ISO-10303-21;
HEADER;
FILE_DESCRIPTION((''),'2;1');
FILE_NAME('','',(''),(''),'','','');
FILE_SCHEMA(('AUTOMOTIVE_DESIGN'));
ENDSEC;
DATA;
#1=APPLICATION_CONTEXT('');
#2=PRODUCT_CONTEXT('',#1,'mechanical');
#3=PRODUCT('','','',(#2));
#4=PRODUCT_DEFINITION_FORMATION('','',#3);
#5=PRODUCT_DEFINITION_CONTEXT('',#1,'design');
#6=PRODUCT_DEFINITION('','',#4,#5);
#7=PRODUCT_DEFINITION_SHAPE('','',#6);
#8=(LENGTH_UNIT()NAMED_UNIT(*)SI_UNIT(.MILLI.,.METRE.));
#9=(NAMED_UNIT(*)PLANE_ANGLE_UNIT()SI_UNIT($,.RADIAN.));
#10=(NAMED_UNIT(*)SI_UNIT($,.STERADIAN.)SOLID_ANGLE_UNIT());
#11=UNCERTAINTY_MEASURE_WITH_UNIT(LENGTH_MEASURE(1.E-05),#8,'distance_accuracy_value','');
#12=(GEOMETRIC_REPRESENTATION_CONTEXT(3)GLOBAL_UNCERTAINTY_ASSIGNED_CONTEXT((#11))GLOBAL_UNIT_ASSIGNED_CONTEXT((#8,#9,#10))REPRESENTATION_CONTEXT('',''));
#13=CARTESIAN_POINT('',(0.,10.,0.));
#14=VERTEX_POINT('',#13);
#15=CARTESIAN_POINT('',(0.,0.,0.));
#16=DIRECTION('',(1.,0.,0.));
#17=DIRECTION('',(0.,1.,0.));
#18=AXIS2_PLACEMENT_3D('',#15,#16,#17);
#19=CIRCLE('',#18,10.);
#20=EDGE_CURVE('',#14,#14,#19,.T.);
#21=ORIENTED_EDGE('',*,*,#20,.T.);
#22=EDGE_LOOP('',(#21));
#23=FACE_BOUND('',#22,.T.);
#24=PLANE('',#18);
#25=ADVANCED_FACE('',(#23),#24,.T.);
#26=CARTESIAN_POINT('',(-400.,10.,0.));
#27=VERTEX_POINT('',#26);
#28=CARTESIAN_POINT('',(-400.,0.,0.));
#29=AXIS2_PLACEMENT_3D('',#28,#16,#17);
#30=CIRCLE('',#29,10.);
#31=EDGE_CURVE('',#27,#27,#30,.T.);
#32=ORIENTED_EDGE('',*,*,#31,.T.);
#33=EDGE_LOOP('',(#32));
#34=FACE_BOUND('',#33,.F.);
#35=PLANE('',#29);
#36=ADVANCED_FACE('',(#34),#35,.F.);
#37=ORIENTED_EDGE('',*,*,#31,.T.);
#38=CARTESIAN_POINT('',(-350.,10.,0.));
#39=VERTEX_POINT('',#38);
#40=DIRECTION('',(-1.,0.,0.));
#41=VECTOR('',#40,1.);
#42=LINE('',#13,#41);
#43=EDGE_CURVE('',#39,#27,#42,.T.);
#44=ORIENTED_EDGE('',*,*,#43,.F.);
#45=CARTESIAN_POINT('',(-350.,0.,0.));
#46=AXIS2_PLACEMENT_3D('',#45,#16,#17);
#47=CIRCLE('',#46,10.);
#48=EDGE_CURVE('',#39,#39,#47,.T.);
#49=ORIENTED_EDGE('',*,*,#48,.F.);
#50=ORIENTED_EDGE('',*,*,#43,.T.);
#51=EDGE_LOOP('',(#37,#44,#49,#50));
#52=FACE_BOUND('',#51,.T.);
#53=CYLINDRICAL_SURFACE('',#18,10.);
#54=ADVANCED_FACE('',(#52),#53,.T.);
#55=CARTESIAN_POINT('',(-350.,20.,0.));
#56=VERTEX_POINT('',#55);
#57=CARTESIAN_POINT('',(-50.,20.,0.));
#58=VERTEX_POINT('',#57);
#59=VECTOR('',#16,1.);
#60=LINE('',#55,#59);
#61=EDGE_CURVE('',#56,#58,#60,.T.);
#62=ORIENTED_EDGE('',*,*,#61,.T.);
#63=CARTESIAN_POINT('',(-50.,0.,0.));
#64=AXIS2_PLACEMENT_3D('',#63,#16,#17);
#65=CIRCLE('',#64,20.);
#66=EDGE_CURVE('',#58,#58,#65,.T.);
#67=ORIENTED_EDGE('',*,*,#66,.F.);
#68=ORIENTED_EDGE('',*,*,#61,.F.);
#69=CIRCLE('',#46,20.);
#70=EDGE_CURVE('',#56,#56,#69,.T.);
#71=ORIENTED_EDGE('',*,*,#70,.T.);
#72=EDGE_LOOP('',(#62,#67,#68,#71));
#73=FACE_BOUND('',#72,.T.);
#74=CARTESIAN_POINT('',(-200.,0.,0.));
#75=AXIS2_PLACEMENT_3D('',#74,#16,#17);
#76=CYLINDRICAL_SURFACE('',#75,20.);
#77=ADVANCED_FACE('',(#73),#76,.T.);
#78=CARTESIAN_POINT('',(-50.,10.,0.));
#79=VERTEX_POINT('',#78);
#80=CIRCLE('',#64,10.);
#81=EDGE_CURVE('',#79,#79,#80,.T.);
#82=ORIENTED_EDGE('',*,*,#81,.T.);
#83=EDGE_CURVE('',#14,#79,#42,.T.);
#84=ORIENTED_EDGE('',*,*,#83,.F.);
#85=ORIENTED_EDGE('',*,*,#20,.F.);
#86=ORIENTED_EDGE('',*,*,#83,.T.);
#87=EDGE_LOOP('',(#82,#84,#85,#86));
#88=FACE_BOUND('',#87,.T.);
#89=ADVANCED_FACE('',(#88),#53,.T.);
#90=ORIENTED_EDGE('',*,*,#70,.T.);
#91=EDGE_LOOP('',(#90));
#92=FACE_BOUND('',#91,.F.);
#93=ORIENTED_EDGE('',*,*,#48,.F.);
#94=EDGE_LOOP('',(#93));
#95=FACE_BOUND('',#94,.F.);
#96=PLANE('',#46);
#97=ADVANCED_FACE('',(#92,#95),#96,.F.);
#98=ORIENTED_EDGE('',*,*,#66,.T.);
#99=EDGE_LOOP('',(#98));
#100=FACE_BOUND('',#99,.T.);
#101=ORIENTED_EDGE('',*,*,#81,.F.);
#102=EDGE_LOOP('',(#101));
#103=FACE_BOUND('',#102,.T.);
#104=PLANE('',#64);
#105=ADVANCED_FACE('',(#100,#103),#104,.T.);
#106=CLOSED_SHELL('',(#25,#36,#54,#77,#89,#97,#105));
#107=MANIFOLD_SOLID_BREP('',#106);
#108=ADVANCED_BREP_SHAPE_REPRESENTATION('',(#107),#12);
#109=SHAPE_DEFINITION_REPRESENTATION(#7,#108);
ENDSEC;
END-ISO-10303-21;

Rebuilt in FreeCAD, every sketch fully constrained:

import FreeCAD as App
import Part
import Sketcher

V = App.Vector

doc = App.newDocument("Part")
body = doc.addObject("PartDesign::Body", "Body")

# Sketch on YZ plane
sketch1 = body.newObject("Sketcher::SketchObject", "Sketch")
sketch1.AttachmentSupport = (doc.getObject("YZ_Plane"), [""])
sketch1.MapMode = "FlatFace"
sketch1.addGeometry(Part.Circle(V(0, 0, 0), V(0, 0, 1), 10), False)
sketch1.addConstraint(Sketcher.Constraint("Coincident", 0, 3, -1, 1))
sketch1.addConstraint(Sketcher.Constraint("Diameter", 0, 20.0))
pad1 = body.newObject("PartDesign::Pad", "Pad")
pad1.Profile = sketch1
pad1.Length = 400
pad1.Reversed = True

# Sketch on YZ plane
sketch2 = body.newObject("Sketcher::SketchObject", "Sketch001")
sketch2.AttachmentSupport = (doc.getObject("YZ_Plane"), [""])
sketch2.MapMode = "FlatFace"
sketch2.AttachmentOffset = App.Placement(V(0, 0, -200), App.Rotation())
sketch2.addGeometry(Part.Circle(V(0, 0, 0), V(0, 0, 1), 20), False)
sketch2.addConstraint(Sketcher.Constraint("Coincident", 0, 3, -1, 1))
sketch2.addConstraint(Sketcher.Constraint("Diameter", 0, 40.0))
pad2 = body.newObject("PartDesign::Pad", "Pad001")
pad2.Profile = sketch2
pad2.Length = 300
pad2.Midplane = True

doc.recompute()
